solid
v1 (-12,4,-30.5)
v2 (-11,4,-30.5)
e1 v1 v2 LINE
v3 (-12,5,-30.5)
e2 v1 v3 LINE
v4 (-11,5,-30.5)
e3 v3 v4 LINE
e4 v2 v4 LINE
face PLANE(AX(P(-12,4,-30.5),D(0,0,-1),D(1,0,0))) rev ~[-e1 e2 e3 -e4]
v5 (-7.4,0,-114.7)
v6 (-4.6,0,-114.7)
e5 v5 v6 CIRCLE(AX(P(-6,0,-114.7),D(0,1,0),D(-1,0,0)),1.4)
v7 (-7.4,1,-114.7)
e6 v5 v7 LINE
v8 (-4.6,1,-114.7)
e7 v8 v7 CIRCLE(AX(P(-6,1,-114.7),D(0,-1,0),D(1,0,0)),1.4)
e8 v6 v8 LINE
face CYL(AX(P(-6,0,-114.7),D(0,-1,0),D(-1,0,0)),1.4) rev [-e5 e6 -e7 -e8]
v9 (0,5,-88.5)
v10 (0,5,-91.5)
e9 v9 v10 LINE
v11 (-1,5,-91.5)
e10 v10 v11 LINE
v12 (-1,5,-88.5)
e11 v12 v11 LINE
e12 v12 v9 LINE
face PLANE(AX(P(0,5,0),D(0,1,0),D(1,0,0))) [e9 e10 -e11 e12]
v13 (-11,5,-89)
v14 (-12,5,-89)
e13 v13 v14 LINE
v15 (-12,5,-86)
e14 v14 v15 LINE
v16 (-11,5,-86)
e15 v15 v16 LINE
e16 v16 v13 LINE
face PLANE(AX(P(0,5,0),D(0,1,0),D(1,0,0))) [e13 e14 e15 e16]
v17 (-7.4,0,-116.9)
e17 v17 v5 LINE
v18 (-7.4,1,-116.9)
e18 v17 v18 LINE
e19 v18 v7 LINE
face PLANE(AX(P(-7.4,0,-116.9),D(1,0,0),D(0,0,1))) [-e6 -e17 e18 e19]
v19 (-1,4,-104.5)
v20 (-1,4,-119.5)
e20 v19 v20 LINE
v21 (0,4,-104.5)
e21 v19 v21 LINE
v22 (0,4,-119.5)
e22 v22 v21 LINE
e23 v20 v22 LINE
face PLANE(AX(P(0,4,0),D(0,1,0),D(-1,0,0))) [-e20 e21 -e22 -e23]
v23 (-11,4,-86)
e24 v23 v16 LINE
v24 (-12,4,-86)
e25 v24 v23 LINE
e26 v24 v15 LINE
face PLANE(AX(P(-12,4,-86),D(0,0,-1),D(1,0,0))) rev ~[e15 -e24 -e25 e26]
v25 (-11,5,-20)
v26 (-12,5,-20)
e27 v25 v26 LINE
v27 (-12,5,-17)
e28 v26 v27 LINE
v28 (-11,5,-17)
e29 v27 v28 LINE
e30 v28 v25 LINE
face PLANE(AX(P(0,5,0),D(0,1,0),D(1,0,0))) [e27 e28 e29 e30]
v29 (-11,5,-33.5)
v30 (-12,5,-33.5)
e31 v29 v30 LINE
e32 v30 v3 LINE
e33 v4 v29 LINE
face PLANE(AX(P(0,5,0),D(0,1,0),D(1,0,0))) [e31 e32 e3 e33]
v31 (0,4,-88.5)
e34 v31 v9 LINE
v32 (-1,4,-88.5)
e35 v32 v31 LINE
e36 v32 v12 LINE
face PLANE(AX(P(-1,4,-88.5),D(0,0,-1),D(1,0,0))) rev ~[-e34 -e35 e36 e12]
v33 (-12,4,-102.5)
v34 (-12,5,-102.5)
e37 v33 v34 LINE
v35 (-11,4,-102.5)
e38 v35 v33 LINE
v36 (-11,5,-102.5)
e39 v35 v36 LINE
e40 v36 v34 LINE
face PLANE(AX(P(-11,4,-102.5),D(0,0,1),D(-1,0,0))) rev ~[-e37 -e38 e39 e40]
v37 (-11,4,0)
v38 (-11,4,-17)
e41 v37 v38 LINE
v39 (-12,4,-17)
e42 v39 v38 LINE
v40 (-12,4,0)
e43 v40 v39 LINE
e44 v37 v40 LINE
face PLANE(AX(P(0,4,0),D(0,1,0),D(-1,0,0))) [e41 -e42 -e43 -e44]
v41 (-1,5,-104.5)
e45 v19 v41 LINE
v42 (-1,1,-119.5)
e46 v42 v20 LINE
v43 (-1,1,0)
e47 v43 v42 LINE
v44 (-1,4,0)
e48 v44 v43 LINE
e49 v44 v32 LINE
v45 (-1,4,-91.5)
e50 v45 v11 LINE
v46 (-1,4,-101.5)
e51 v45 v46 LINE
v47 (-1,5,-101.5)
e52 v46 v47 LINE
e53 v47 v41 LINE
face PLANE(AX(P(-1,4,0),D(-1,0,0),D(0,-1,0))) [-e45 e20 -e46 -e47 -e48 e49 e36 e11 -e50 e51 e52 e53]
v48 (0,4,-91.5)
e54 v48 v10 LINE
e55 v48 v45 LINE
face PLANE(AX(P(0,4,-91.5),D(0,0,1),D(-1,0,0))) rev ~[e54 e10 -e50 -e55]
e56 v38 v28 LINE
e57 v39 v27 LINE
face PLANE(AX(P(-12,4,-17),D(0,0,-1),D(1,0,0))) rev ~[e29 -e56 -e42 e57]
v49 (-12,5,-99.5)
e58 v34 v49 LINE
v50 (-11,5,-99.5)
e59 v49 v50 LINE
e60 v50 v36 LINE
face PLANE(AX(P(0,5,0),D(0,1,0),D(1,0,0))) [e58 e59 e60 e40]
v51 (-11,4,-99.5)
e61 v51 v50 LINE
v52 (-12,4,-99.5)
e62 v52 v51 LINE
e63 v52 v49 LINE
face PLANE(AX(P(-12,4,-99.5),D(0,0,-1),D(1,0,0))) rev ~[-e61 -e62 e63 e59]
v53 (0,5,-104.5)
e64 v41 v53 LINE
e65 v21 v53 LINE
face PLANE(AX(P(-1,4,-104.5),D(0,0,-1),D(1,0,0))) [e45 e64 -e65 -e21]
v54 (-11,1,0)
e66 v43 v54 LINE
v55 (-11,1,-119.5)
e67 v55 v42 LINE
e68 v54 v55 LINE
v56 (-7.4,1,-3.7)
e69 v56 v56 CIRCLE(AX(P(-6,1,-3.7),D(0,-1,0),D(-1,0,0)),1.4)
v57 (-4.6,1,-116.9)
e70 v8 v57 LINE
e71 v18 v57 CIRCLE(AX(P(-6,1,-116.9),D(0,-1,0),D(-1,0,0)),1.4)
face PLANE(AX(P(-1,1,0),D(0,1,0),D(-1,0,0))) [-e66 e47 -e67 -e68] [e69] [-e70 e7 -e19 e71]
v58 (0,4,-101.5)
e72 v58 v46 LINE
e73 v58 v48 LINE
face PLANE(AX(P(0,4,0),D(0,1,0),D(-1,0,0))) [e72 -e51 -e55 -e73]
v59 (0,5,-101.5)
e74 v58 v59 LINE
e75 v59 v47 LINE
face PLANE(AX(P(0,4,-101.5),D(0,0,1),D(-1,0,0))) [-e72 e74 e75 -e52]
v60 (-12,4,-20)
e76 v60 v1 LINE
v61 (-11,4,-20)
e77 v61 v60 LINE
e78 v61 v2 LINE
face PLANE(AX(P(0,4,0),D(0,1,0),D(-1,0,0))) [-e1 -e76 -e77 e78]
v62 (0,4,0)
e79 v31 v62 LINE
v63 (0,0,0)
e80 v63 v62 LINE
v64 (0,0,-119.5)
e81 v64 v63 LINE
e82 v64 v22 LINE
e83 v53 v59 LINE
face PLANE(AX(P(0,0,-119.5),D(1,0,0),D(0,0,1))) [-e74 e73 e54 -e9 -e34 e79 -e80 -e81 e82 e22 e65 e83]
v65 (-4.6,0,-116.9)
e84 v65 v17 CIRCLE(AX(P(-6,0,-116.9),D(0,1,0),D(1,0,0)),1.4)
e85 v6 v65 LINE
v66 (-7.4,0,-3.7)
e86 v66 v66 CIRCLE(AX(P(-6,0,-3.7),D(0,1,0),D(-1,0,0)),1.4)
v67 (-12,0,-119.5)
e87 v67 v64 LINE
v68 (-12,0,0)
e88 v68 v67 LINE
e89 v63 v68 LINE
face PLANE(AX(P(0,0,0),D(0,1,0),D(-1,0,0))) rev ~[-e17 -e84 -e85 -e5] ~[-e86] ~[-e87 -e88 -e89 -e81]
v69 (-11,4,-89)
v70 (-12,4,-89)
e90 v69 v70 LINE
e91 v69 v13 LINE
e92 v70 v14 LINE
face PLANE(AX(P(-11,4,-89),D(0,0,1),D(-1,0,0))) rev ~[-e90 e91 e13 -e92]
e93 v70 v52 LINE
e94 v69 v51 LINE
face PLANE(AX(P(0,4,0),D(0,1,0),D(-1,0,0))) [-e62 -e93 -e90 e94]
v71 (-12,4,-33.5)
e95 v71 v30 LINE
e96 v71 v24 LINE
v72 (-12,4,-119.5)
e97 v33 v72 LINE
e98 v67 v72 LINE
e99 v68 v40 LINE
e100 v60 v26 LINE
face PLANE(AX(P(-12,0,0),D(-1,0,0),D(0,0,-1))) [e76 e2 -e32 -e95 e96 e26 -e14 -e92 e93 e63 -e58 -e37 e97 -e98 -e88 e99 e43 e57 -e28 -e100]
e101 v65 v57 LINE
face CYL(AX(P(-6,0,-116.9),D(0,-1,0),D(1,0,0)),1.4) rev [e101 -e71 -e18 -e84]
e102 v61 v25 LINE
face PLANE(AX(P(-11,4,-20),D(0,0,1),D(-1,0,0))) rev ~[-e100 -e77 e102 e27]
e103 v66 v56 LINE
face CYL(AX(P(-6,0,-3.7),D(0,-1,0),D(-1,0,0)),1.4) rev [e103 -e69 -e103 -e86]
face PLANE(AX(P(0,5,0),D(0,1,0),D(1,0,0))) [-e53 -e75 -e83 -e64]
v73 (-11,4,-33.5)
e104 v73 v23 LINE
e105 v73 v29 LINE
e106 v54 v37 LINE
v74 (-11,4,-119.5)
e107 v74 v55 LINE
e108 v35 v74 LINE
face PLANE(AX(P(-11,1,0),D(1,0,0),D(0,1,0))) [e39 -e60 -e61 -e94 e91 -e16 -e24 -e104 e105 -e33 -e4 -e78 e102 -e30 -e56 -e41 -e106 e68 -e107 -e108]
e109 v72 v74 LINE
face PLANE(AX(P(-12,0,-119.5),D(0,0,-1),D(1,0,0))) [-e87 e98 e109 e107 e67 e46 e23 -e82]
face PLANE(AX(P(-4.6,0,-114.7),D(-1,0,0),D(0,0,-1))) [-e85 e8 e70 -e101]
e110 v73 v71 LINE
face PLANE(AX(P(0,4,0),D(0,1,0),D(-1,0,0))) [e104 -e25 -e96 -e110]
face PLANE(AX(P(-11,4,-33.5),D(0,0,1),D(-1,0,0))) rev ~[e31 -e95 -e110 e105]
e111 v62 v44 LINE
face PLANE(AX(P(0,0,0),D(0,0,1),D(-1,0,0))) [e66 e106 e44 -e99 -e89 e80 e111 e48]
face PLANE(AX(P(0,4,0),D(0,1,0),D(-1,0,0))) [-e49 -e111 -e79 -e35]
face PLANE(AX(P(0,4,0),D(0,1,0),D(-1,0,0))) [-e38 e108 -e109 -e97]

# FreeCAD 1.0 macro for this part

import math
import FreeCAD as App
import Part
import Sketcher

V = App.Vector

doc = App.newDocument("Part")
params = doc.addObject("Spreadsheet::Sheet", "Params")
for row, (alias, value) in enumerate([
    ("sketch1_diameter", "2.8 mm"),
    ("sketch1_width", "12 mm"),
    ("sketch1_height", "119.5 mm"),
    ("sketch1_height2", "2.2 mm"),
    ("pad1_length", "4 mm"),
    ("sketch2_width", "10 mm"),
    ("sketch2_height", "3 mm"),
    ("sketch3_width", "1 mm"),
    ("sketch3_height", "3 mm"),
    ("pad2_length", "1 mm"),
], start=1):
    params.set(f"A{row}", alias)
    params.set(f"B{row}", "=" + value)
    params.setAlias(f"B{row}", alias)

body = doc.addObject("PartDesign::Body", "Body")

sketch1 = body.newObject("Sketcher::SketchObject", "Sketch")
sketch1.AttachmentSupport = (doc.getObject("XZ_Plane"), [""])
sketch1.MapMode = "FlatFace"
sketch1.addGeometry(Part.LineSegment(V(-12, 0, 0), V(0, 0, 0)), False)
sketch1.addGeometry(Part.LineSegment(V(0, 0, 0), V(0, -119.5, 0)), False)
sketch1.addGeometry(Part.LineSegment(V(0, -119.5, 0), V(-12, -119.5, 0)), False)
sketch1.addGeometry(Part.LineSegment(V(-12, -119.5, 0), V(-12, 0, 0)), False)
sketch1.addGeometry(Part.LineSegment(V(-4.6, -116.9, 0), V(-4.6, -114.7, 0)), False)
sketch1.addGeometry(Part.ArcOfCircle(Part.Circle(V(-6, -114.7, 0), V(0, 0, 1), 1.4), math.radians(0), math.radians(180)), False)
sketch1.addGeometry(Part.LineSegment(V(-7.4, -114.7, 0), V(-7.4, -116.9, 0)), False)
sketch1.addGeometry(Part.ArcOfCircle(Part.Circle(V(-6, -116.9, 0), V(0, 0, 1), 1.4), math.radians(180), math.radians(360)), False)
sketch1.addGeometry(Part.Circle(V(-6, -3.7, 0), V(0, 0, 1), 1.4), False)
sketch1.addConstraint(Sketcher.Constraint("Coincident", 0, 2, 1, 1))
sketch1.addConstraint(Sketcher.Constraint("Coincident", 1, 2, 2, 1))
sketch1.addConstraint(Sketcher.Constraint("Coincident", 2, 2, 3, 1))
sketch1.addConstraint(Sketcher.Constraint("Coincident", 3, 2, 0, 1))
sketch1.addConstraint(Sketcher.Constraint("Tangent", 4, 2, 5, 1))
sketch1.addConstraint(Sketcher.Constraint("Tangent", 5, 2, 6, 1))
sketch1.addConstraint(Sketcher.Constraint("Tangent", 6, 2, 7, 1))
sketch1.addConstraint(Sketcher.Constraint("Tangent", 7, 2, 4, 1))
sketch1.addConstraint(Sketcher.Constraint("Horizontal", 0))
sketch1.addConstraint(Sketcher.Constraint("Vertical", 1))
sketch1.addConstraint(Sketcher.Constraint("Horizontal", 2))
sketch1.addConstraint(Sketcher.Constraint("Vertical", 3))
sketch1.addConstraint(Sketcher.Constraint("Vertical", 4))
sketch1.addConstraint(Sketcher.Constraint("Vertical", 6))
sketch1.addConstraint(Sketcher.Constraint("Coincident", 0, 2, -1, 1))
sketch1.addConstraint(Sketcher.Constraint("Equal", 7, 8))
sketch1.addConstraint(Sketcher.Constraint("Vertical", 7, 3, 8, 3))
sketch1.addConstraint(Sketcher.Constraint("Diameter", 8, 2.8))
sketch1.addConstraint(Sketcher.Constraint("DistanceX", 0, 1, 0, 2, 12.0))
sketch1.addConstraint(Sketcher.Constraint("DistanceY", 1, 2, 1, 1, 119.5))
sketch1.addConstraint(Sketcher.Constraint("DistanceX", 5, 3, -1, 1, 6.0))
sketch1.addConstraint(Sketcher.Constraint("DistanceY", 8, 3, -1, 1, 3.7))
sketch1.addConstraint(Sketcher.Constraint("DistanceY", 4, 1, 4, 2, 2.2))
sketch1.addConstraint(Sketcher.Constraint("DistanceY", 5, 3, 8, 3, 111.0))
sketch1.setExpression("Constraints[17]", "Params.sketch1_diameter")
sketch1.setExpression("Constraints[18]", "Params.sketch1_width")
sketch1.setExpression("Constraints[19]", "Params.sketch1_height")
sketch1.setExpression("Constraints[22]", "Params.sketch1_height2")
pad1 = body.newObject("PartDesign::Pad", "Pad")
pad1.Profile = sketch1
pad1.setExpression("Length", "Params.pad1_length")
pad1.Reversed = True

sketch2 = body.newObject("Sketcher::SketchObject", "Sketch001")
sketch2.AttachmentSupport = (doc.getObject("XY_Plane"), [""])
sketch2.MapMode = "FlatFace"
sketch2.addGeometry(Part.LineSegment(V(-1, 1, 0), V(-1, 4, 0)), False)
sketch2.addGeometry(Part.LineSegment(V(-1, 4, 0), V(-11, 4, 0)), False)
sketch2.addGeometry(Part.LineSegment(V(-11, 4, 0), V(-11, 1, 0)), False)
sketch2.addGeometry(Part.LineSegment(V(-11, 1, 0), V(-1, 1, 0)), False)
sketch2.addConstraint(Sketcher.Constraint("Coincident", 0, 2, 1, 1))
sketch2.addConstraint(Sketcher.Constraint("Coincident", 1, 2, 2, 1))
sketch2.addConstraint(Sketcher.Constraint("Coincident", 2, 2, 3, 1))
sketch2.addConstraint(Sketcher.Constraint("Coincident", 3, 2, 0, 1))
sketch2.addConstraint(Sketcher.Constraint("Vertical", 0))
sketch2.addConstraint(Sketcher.Constraint("Horizontal", 1))
sketch2.addConstraint(Sketcher.Constraint("Vertical", 2))
sketch2.addConstraint(Sketcher.Constraint("Horizontal", 3))
sketch2.addConstraint(Sketcher.Constraint("DistanceX", 0, 2, -1, 1, 1.0))
sketch2.addConstraint(Sketcher.Constraint("DistanceY", -1, 1, 2, 2, 1.0))
sketch2.addConstraint(Sketcher.Constraint("DistanceX", 1, 2, 1, 1, 10.0))
sketch2.addConstraint(Sketcher.Constraint("DistanceY", 0, 1, 0, 2, 3.0))
sketch2.setExpression("Constraints[10]", "Params.sketch2_width")
sketch2.setExpression("Constraints[11]", "Params.sketch2_height")
pocket1 = body.newObject("PartDesign::Pocket", "Pocket")
pocket1.Profile = sketch2
pocket1.Type = "ThroughAll"

sketch3 = body.newObject("Sketcher::SketchObject", "Sketch002")
sketch3.AttachmentSupport = (doc.getObject("XZ_Plane"), [""])
sketch3.MapMode = "FlatFace"
sketch3.AttachmentOffset = App.Placement(V(0, 0, -4), App.Rotation())
sketch3.addGeometry(Part.LineSegment(V(-11, -102.5, 0), V(-12, -102.5, 0)), False)
sketch3.addGeometry(Part.LineSegment(V(-12, -102.5, 0), V(-12, -99.5, 0)), False)
sketch3.addGeometry(Part.LineSegment(V(-12, -99.5, 0), V(-11, -99.5, 0)), False)
sketch3.addGeometry(Part.LineSegment(V(-11, -99.5, 0), V(-11, -102.5, 0)), False)
sketch3.addGeometry(Part.LineSegment(V(-11, -89, 0), V(-12, -89, 0)), False)
sketch3.addGeometry(Part.LineSegment(V(-12, -89, 0), V(-12, -86, 0)), False)
sketch3.addGeometry(Part.LineSegment(V(-12, -86, 0), V(-11, -86, 0)), False)
sketch3.addGeometry(Part.LineSegment(V(-11, -86, 0), V(-11, -89, 0)), False)
sketch3.addGeometry(Part.LineSegment(V(-11, -33.5, 0), V(-12, -33.5, 0)), False)
sketch3.addGeometry(Part.LineSegment(V(-12, -33.5, 0), V(-12, -30.5, 0)), False)
sketch3.addGeometry(Part.LineSegment(V(-12, -30.5, 0), V(-11, -30.5, 0)), False)
sketch3.addGeometry(Part.LineSegment(V(-11, -30.5, 0), V(-11, -33.5, 0)), False)
sketch3.addGeometry(Part.LineSegment(V(-11, -20, 0), V(-12, -20, 0)), False)
sketch3.addGeometry(Part.LineSegment(V(-12, -20, 0), V(-12, -17, 0)), False)
sketch3.addGeometry(Part.LineSegment(V(-12, -17, 0), V(-11, -17, 0)), False)
sketch3.addGeometry(Part.LineSegment(V(-11, -17, 0), V(-11, -20, 0)), False)
sketch3.addGeometry(Part.LineSegment(V(-1, -91.5, 0), V(-1, -88.5, 0)), False)
sketch3.addGeometry(Part.LineSegment(V(-1, -88.5, 0), V(0, -88.5, 0)), False)
sketch3.addGeometry(Part.LineSegment(V(0, -88.5, 0), V(0, -91.5, 0)), False)
sketch3.addGeometry(Part.LineSegment(V(0, -91.5, 0), V(-1, -91.5, 0)), False)
sketch3.addGeometry(Part.LineSegment(V(-1, -104.5, 0), V(-1, -101.5, 0)), False)
sketch3.addGeometry(Part.LineSegment(V(-1, -101.5, 0), V(0, -101.5, 0)), False)
sketch3.addGeometry(Part.LineSegment(V(0, -101.5, 0), V(0, -104.5, 0)), False)
sketch3.addGeometry(Part.LineSegment(V(0, -104.5, 0), V(-1, -104.5, 0)), False)
sketch3.addConstraint(Sketcher.Constraint("Coincident", 0, 2, 1, 1))
sketch3.addConstraint(Sketcher.Constraint("Coincident", 1, 2, 2, 1))
sketch3.addConstraint(Sketcher.Constraint("Coincident", 2, 2, 3, 1))
sketch3.addConstraint(Sketcher.Constraint("Coincident", 3, 2, 0, 1))
sketch3.addConstraint(Sketcher.Constraint("Coincident", 4, 2, 5, 1))
sketch3.addConstraint(Sketcher.Constraint("Coincident", 5, 2, 6, 1))
sketch3.addConstraint(Sketcher.Constraint("Coincident", 6, 2, 7, 1))
sketch3.addConstraint(Sketcher.Constraint("Coincident", 7, 2, 4, 1))
sketch3.addConstraint(Sketcher.Constraint("Coincident", 8, 2, 9, 1))
sketch3.addConstraint(Sketcher.Constraint("Coincident", 9, 2, 10, 1))
sketch3.addConstraint(Sketcher.Constraint("Coincident", 10, 2, 11, 1))
sketch3.addConstraint(Sketcher.Constraint("Coincident", 11, 2, 8, 1))
sketch3.addConstraint(Sketcher.Constraint("Coincident", 12, 2, 13, 1))
sketch3.addConstraint(Sketcher.Constraint("Coincident", 13, 2, 14, 1))
sketch3.addConstraint(Sketcher.Constraint("Coincident", 14, 2, 15, 1))
sketch3.addConstraint(Sketcher.Constraint("Coincident", 15, 2, 12, 1))
sketch3.addConstraint(Sketcher.Constraint("Coincident", 16, 2, 17, 1))
sketch3.addConstraint(Sketcher.Constraint("Coincident", 17, 2, 18, 1))
sketch3.addConstraint(Sketcher.Constraint("Coincident", 18, 2, 19, 1))
sketch3.addConstraint(Sketcher.Constraint("Coincident", 19, 2, 16, 1))
sketch3.addConstraint(Sketcher.Constraint("Coincident", 20, 2, 21, 1))
sketch3.addConstraint(Sketcher.Constraint("Coincident", 21, 2, 22, 1))
sketch3.addConstraint(Sketcher.Constraint("Coincident", 22, 2, 23, 1))
sketch3.addConstraint(Sketcher.Constraint("Coincident", 23, 2, 20, 1))
sketch3.addConstraint(Sketcher.Constraint("Horizontal", 0))
sketch3.addConstraint(Sketcher.Constraint("Vertical", 1))
sketch3.addConstraint(Sketcher.Constraint("Horizontal", 2))
sketch3.addConstraint(Sketcher.Constraint("Vertical", 3))
sketch3.addConstraint(Sketcher.Constraint("Horizontal", 4))
sketch3.addConstraint(Sketcher.Constraint("Vertical", 5))
sketch3.addConstraint(Sketcher.Constraint("Horizontal", 6))
sketch3.addConstraint(Sketcher.Constraint("Vertical", 7))
sketch3.addConstraint(Sketcher.Constraint("Horizontal", 8))
sketch3.addConstraint(Sketcher.Constraint("Vertical", 9))
sketch3.addConstraint(Sketcher.Constraint("Horizontal", 10))
sketch3.addConstraint(Sketcher.Constraint("Vertical", 11))
sketch3.addConstraint(Sketcher.Constraint("Horizontal", 12))
sketch3.addConstraint(Sketcher.Constraint("Vertical", 13))
sketch3.addConstraint(Sketcher.Constraint("Horizontal", 14))
sketch3.addConstraint(Sketcher.Constraint("Vertical", 15))
sketch3.addConstraint(Sketcher.Constraint("Vertical", 16))
sketch3.addConstraint(Sketcher.Constraint("Horizontal", 17))
sketch3.addConstraint(Sketcher.Constraint("Vertical", 18))
sketch3.addConstraint(Sketcher.Constraint("Horizontal", 19))
sketch3.addConstraint(Sketcher.Constraint("Vertical", 20))
sketch3.addConstraint(Sketcher.Constraint("Horizontal", 21))
sketch3.addConstraint(Sketcher.Constraint("Vertical", 22))
sketch3.addConstraint(Sketcher.Constraint("Horizontal", 23))
sketch3.addConstraint(Sketcher.Constraint("PointOnObject", 17, 2, -2))
sketch3.addConstraint(Sketcher.Constraint("PointOnObject", 21, 2, -2))
sketch3.addConstraint(Sketcher.Constraint("Vertical", 1, 2, 4, 2))
sketch3.addConstraint(Sketcher.Constraint("Vertical", 3, 2, 6, 2))
sketch3.addConstraint(Sketcher.Constraint("Vertical", 5, 2, 8, 2))
sketch3.addConstraint(Sketcher.Constraint("Vertical", 7, 2, 10, 2))
sketch3.addConstraint(Sketcher.Constraint("Vertical", 9, 2, 12, 2))
sketch3.addConstraint(Sketcher.Constraint("Vertical", 11, 2, 14, 2))
sketch3.addConstraint(Sketcher.Constraint("Vertical", 19, 2, 20, 2))
sketch3.addConstraint(Sketcher.Constraint("Equal", 14, 17))
sketch3.addConstraint(Sketcher.Constraint("Equal", 3, 5))
sketch3.addConstraint(Sketcher.Constraint("Equal", 7, 9))
sketch3.addConstraint(Sketcher.Constraint("Equal", 11, 13))
sketch3.addConstraint(Sketcher.Constraint("Equal", 15, 16))
sketch3.addConstraint(Sketcher.Constraint("Equal", 18, 20))
sketch3.addConstraint(Sketcher.Constraint("DistanceX", 0, 2, 0, 1, 1.0))
sketch3.addConstraint(Sketcher.Constraint("DistanceY", 1, 1, 1, 2, 3.0))
sketch3.addConstraint(Sketcher.Constraint("DistanceY", 13, 2, -1, 1, 17.0))
sketch3.addConstraint(Sketcher.Constraint("DistanceX", 7, 2, 16, 2, 10.0))
sketch3.addConstraint(Sketcher.Constraint("DistanceY", 20, 2, 19, 2, 10.0))
sketch3.addConstraint(Sketcher.Constraint("DistanceY", 3, 2, 20, 2, 1.0))
sketch3.addConstraint(Sketcher.Constraint("DistanceY", 1, 2, 4, 2, 10.5))
sketch3.addConstraint(Sketcher.Constraint("DistanceY", 9, 2, 12, 2, 10.5))
sketch3.addConstraint(Sketcher.Constraint("DistanceY", 4, 2, -1, 1, 89.0))
sketch3.setExpression("Constraints[63]", "Params.sketch3_width")
sketch3.setExpression("Constraints[64]", "Params.sketch3_height")
pad2 = body.newObject("PartDesign::Pad", "Pad001")
pad2.Profile = sketch3
pad2.setExpression("Length", "Params.pad2_length")
pad2.Reversed = True

doc.recompute()
